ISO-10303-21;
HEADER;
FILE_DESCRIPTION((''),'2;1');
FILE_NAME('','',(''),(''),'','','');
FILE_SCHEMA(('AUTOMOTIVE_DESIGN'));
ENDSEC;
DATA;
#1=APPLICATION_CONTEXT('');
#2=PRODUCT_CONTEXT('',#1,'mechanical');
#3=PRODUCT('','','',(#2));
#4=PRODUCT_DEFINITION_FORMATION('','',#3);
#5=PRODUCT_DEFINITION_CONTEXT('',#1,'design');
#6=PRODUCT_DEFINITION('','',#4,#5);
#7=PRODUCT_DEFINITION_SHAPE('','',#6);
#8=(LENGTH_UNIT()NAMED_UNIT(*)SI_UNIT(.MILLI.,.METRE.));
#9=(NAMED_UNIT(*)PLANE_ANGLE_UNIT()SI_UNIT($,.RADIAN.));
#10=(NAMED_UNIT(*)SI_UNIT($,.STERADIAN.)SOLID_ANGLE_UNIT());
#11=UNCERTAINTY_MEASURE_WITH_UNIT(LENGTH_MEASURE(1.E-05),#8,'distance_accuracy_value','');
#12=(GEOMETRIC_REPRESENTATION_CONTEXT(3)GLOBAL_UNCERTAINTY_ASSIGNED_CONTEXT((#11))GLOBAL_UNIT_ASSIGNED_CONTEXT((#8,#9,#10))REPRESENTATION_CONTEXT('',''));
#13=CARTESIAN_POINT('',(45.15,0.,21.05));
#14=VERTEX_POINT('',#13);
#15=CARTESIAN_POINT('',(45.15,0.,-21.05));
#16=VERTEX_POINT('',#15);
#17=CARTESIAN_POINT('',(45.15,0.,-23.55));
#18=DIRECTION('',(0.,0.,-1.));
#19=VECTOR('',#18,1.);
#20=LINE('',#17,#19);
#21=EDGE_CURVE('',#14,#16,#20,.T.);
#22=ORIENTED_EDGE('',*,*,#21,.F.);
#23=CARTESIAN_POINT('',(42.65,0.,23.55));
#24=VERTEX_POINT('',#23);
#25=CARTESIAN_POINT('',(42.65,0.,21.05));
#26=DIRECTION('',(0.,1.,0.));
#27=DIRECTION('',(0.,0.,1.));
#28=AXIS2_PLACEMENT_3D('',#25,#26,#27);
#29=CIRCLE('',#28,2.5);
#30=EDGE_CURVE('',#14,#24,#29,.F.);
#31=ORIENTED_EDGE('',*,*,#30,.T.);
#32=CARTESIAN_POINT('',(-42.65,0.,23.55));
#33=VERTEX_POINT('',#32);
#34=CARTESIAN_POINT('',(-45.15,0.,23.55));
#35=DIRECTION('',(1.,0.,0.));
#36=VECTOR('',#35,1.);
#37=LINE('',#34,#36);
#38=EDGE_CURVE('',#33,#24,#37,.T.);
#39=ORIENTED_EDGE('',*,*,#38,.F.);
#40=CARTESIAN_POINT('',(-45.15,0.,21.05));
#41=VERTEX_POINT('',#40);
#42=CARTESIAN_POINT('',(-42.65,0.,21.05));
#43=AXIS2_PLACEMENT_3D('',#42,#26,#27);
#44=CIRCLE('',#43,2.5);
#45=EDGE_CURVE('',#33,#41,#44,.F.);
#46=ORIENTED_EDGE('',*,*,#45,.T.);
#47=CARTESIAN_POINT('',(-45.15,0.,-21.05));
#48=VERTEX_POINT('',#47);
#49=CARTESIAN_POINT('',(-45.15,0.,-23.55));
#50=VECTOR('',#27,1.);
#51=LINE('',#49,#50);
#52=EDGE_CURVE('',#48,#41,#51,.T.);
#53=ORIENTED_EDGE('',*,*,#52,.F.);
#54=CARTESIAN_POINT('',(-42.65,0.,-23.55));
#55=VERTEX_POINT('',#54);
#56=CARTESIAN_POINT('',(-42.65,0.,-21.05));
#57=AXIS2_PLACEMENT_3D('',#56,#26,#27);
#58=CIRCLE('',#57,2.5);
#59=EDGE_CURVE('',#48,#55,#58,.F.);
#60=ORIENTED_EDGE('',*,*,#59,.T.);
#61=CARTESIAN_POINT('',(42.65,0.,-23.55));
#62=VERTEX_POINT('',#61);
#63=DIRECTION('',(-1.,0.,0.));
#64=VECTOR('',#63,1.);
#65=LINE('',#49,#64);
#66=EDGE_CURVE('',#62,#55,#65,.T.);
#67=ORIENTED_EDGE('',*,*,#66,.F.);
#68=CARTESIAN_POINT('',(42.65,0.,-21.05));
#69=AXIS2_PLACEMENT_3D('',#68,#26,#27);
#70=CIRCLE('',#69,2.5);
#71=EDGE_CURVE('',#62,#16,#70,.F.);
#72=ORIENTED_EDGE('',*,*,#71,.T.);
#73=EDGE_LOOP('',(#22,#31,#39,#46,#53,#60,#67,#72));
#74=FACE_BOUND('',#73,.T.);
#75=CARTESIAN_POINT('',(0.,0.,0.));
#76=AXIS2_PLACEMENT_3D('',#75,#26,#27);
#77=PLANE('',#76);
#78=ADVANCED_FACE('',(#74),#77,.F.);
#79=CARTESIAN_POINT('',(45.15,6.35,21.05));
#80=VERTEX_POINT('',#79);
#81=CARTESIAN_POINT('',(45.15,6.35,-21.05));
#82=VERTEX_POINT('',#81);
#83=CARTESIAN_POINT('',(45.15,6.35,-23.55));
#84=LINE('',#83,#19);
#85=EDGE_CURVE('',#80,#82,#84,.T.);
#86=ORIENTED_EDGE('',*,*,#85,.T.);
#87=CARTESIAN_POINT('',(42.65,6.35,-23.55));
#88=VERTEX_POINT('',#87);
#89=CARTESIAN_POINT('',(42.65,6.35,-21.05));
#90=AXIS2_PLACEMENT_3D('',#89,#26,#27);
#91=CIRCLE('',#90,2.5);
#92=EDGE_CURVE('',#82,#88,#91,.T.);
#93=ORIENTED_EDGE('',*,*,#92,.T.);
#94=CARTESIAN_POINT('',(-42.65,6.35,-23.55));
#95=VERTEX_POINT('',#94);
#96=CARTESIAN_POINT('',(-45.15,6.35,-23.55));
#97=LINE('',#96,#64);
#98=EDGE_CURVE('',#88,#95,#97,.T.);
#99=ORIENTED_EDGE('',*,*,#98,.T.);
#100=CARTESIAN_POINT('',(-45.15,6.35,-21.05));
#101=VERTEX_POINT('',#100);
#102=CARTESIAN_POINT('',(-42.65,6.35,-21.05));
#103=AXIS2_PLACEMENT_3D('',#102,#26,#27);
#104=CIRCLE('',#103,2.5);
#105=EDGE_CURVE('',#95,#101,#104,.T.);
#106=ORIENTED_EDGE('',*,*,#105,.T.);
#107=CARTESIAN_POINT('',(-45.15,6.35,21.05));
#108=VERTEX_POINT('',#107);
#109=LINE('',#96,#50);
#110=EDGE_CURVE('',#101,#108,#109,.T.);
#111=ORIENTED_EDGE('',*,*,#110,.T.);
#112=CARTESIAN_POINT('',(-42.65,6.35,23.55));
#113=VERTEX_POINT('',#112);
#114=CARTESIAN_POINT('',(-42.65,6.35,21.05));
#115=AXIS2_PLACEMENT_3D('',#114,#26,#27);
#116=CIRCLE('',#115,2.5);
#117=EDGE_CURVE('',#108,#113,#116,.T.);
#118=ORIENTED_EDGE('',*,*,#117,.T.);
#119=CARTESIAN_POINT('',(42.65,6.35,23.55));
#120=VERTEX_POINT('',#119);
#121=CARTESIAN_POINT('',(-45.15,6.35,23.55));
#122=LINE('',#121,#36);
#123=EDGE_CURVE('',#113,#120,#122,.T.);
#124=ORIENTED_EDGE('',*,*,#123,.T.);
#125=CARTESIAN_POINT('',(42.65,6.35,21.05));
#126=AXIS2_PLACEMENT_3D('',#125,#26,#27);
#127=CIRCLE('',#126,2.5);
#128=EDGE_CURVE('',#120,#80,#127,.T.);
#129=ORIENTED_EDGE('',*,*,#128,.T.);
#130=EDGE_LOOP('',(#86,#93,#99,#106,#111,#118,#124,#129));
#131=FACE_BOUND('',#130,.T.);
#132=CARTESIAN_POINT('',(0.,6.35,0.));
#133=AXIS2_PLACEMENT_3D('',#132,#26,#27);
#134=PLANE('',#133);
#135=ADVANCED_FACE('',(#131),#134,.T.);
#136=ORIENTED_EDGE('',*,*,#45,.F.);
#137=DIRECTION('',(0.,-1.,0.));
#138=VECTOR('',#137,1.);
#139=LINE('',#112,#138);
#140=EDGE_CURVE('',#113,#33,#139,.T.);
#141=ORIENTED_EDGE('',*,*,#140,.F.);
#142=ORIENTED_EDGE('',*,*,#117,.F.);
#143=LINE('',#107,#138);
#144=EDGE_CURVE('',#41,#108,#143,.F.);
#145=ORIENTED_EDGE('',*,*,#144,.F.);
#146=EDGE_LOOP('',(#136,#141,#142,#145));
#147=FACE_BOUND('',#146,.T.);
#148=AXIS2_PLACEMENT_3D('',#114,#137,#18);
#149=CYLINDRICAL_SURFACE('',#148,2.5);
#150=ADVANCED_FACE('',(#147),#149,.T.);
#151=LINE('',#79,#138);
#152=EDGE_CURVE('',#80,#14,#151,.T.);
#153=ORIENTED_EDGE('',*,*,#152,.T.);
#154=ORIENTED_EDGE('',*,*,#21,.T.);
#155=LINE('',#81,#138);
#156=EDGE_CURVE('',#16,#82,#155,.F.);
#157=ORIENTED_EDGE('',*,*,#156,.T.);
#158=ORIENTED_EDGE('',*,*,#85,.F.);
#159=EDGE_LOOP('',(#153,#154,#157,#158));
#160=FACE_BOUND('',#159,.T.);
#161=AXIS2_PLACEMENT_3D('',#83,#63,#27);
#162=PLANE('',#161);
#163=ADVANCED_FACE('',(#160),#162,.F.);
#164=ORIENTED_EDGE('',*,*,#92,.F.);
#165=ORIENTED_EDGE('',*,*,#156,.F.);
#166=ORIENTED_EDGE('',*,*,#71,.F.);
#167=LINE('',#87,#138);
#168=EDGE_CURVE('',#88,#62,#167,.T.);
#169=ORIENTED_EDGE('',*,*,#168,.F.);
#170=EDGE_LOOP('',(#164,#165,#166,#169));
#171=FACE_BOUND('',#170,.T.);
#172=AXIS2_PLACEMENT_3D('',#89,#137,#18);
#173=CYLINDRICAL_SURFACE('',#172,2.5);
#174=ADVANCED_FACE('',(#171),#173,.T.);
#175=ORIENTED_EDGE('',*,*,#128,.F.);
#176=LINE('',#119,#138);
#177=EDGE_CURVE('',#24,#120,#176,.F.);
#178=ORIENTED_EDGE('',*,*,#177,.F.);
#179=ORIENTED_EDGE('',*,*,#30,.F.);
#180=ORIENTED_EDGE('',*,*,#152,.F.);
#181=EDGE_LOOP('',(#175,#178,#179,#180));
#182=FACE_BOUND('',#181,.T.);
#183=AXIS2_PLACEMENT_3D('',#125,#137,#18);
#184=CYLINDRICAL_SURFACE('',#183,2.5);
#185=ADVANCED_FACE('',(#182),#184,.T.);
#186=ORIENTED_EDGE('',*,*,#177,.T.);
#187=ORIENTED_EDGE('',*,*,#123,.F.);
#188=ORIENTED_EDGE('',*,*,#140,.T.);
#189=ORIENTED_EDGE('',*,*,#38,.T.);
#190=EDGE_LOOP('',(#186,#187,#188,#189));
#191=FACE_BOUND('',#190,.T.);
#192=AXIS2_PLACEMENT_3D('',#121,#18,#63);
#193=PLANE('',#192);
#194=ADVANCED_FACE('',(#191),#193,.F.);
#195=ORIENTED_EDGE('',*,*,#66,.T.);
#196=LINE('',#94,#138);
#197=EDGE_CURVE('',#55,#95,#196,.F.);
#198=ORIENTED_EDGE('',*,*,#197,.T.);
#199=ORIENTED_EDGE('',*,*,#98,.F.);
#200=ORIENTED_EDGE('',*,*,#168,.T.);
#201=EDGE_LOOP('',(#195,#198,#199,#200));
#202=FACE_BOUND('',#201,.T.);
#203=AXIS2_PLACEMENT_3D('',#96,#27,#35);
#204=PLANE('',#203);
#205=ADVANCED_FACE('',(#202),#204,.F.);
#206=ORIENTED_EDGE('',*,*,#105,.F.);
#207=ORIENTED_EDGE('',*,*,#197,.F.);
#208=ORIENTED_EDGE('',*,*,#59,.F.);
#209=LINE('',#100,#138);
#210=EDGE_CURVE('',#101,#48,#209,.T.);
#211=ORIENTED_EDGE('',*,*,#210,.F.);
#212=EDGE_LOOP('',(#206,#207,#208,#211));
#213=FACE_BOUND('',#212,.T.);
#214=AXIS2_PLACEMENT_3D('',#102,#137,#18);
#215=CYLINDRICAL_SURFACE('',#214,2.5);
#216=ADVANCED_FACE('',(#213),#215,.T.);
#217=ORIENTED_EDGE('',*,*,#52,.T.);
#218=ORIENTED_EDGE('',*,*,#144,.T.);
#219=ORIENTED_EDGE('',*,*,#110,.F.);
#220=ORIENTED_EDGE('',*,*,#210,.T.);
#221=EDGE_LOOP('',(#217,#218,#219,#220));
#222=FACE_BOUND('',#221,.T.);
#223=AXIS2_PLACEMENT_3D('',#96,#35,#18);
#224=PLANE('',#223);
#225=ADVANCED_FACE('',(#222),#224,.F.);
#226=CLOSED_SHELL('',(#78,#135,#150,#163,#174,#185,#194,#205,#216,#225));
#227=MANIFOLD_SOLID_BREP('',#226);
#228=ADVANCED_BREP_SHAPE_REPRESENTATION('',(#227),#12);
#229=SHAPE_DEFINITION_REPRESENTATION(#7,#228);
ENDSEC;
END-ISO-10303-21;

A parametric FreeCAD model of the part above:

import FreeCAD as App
import Part
import Sketcher


def edges_at(feature, points):
    """Names of the edges that pass closest to the given points."""
    edges = feature.Shape.Edges
    near = lambda p: min(range(len(edges)), key=lambda i: edges[i].distToShape(Part.Vertex(*p))[0])
    return sorted({f"Edge{near(p) + 1}" for p in points})


def add_polygon(sketch, points):
    """Adds a closed chain of lines whose ends are joined by coincident constraints."""
    first, n = sketch.GeometryCount, len(points)
    for a, b in zip(points, points[1:] + points[:1]):
        sketch.addGeometry(Part.LineSegment(App.Vector(*a, 0), App.Vector(*b, 0)), False)
    for i in range(n):
        sketch.addConstraint(Sketcher.Constraint("Coincident", first + i, 2, first + (i + 1) % n, 1))

doc = App.newDocument("Part")
body = doc.addObject("PartDesign::Body", "Body")

sketch1 = doc.addObject("Sketcher::SketchObject", "Sketch")
body.addObject(sketch1)
sketch1.AttachmentSupport = (doc.XZ_Plane, [""])
sketch1.MapMode = "FlatFace"
add_polygon(sketch1, [(-45, -24), (-45, 24), (45, 24), (45, -24)])
sketch1.addConstraint([
    Sketcher.Constraint("Vertical", 0),
    Sketcher.Constraint("Horizontal", 1),
    Sketcher.Constraint("Vertical", 2),
    Sketcher.Constraint("Horizontal", 3),
    Sketcher.Constraint("Symmetric", 0, 2, 2, 2, -1, 1),
    Sketcher.Constraint("DistanceX", 1, 1, 1, 2, 90.3),
    Sketcher.Constraint("DistanceY", 0, 1, 0, 2, 47.1),
])
pad1 = doc.addObject("PartDesign::Pad", "Pad")
body.addObject(pad1)
pad1.Profile = sketch1
pad1.Length = 6.35
pad1.Reversed = True
doc.recompute()

fillet = doc.addObject("PartDesign::Fillet", "Fillet")
body.addObject(fillet)
fillet.Base = (pad1, edges_at(pad1, [
    (-45.15, 3.175, -23.55),
    (45.15, 3.175, -23.55),
    (45.15, 3.175, 23.55),
    (-45.15, 3.175, 23.55),
]))
fillet.Radius = 2.5

doc.recompute()
